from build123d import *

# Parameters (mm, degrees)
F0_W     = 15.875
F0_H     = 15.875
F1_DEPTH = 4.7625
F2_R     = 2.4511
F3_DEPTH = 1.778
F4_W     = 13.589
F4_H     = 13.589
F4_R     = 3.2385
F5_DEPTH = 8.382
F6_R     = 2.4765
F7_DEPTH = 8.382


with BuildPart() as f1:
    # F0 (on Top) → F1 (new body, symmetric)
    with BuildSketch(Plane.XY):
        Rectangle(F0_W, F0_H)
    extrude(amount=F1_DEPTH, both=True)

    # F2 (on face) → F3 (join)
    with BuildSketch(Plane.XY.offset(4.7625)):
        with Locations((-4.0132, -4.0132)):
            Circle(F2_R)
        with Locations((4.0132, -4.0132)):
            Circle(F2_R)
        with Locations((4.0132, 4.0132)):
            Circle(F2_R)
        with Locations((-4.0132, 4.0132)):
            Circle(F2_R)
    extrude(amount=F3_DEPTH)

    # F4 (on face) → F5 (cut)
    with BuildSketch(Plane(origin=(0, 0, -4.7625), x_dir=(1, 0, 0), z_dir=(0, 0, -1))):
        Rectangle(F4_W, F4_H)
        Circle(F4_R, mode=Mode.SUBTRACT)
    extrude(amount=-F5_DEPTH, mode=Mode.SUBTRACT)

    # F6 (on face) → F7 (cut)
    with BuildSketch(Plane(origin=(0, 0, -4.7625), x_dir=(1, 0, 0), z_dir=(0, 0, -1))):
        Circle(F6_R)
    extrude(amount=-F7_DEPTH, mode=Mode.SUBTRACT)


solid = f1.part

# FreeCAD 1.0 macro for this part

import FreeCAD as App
import Part
import Sketcher
Q = App.Units.Quantity

doc = App.newDocument("Part")
body = doc.addObject("PartDesign::Body", "Body")

# Sketch on XY plane
sketch1 = doc.addObject("Sketcher::SketchObject", "Sketch")
body.addObject(sketch1)
sketch1.AttachmentSupport = (doc.XY_Plane, [""])
sketch1.MapMode = "FlatFace"
sketch1.addGeometry(Part.LineSegment(App.Vector(-8, 8, 0), App.Vector(-8, -8, 0)), False)
sketch1.addGeometry(Part.LineSegment(App.Vector(-8, -8, 0), App.Vector(8, -8, 0)), False)
sketch1.addGeometry(Part.LineSegment(App.Vector(8, -8, 0), App.Vector(8, 8, 0)), False)
sketch1.addGeometry(Part.LineSegment(App.Vector(8, 8, 0), App.Vector(-8, 8, 0)), False)
sketch1.addConstraint(Sketcher.Constraint("Coincident", 0, 2, 1, 1))
sketch1.addConstraint(Sketcher.Constraint("Coincident", 1, 2, 2, 1))
sketch1.addConstraint(Sketcher.Constraint("Coincident", 2, 2, 3, 1))
sketch1.addConstraint(Sketcher.Constraint("Coincident", 3, 2, 0, 1))
sketch1.addConstraint(Sketcher.Constraint("Vertical", 0))
sketch1.addConstraint(Sketcher.Constraint("Horizontal", 1))
sketch1.addConstraint(Sketcher.Constraint("Vertical", 2))
sketch1.addConstraint(Sketcher.Constraint("Horizontal", 3))
sketch1.addConstraint(Sketcher.Constraint("Symmetric", 0, 2, 2, 2, -1, 1))
sketch1.addConstraint(Sketcher.Constraint("Equal", 3, 0))
sketch1.addConstraint(Sketcher.Constraint("DistanceX", 1, 1, 1, 2, Q("0.625 in")))
pad1 = doc.addObject("PartDesign::Pad", "Pad")
body.addObject(pad1)
pad1.Profile = sketch1
pad1.Length = Q("0.375 in")
pad1.Midplane = True

# Sketch on XY plane
sketch2 = doc.addObject("Sketcher::SketchObject", "Sketch001")
body.addObject(sketch2)
sketch2.AttachmentSupport = (doc.XY_Plane, [""])
sketch2.MapMode = "FlatFace"
sketch2.AttachmentOffset = App.Placement(App.Vector(0, 0, 0.1875 * 25.4), App.Rotation())
sketch2.addGeometry(Part.Circle(App.Vector(-4, -4, 0), App.Vector(0, 0, 1), 2.5), False)
sketch2.addGeometry(Part.Circle(App.Vector(4, -4, 0), App.Vector(0, 0, 1), 2.5), False)
sketch2.addGeometry(Part.Circle(App.Vector(4, 4, 0), App.Vector(0, 0, 1), 2.5), False)
sketch2.addGeometry(Part.Circle(App.Vector(-4, 4, 0), App.Vector(0, 0, 1), 2.5), False)
sketch2.addConstraint(Sketcher.Constraint("Equal", 0, 1))
sketch2.addConstraint(Sketcher.Constraint("Equal", 1, 2))
sketch2.addConstraint(Sketcher.Constraint("Equal", 2, 3))
sketch2.addConstraint(Sketcher.Constraint("Symmetric", 0, 3, 2, 3, -1, 1))
sketch2.addConstraint(Sketcher.Constraint("Symmetric", 1, 3, 3, 3, -1, 1))
sketch2.addConstraint(Sketcher.Constraint("Symmetric", 0, 3, 1, 3, -2))
sketch2.addConstraint(Sketcher.Constraint("Diameter", 0, Q("0.193 in")))
sketch2.addConstraint(Sketcher.Constraint("DistanceX", 0, 3, -1, 1, Q("0.158 in")))
sketch2.addConstraint(Sketcher.Constraint("DistanceY", 0, 3, -1, 1, Q("0.158 in")))
pad2 = doc.addObject("PartDesign::Pad", "Pad001")
body.addObject(pad2)
pad2.Profile = sketch2
pad2.Length = Q("0.07 in")

# Sketch on XY plane
sketch3 = doc.addObject("Sketcher::SketchObject", "Sketch002")
body.addObject(sketch3)
sketch3.AttachmentSupport = (doc.XY_Plane, [""])
sketch3.MapMode = "FlatFace"
sketch3.AttachmentOffset = App.Placement(App.Vector(0, 0, -0.1875 * 25.4), App.Rotation())
sketch3.addGeometry(Part.LineSegment(App.Vector(-6.8, -6.8, 0), App.Vector(-6.8, 6.8, 0)), False)
sketch3.addGeometry(Part.LineSegment(App.Vector(-6.8, 6.8, 0), App.Vector(6.8, 6.8, 0)), False)
sketch3.addGeometry(Part.LineSegment(App.Vector(6.8, 6.8, 0), App.Vector(6.8, -6.8, 0)), False)
sketch3.addGeometry(Part.LineSegment(App.Vector(6.8, -6.8, 0), App.Vector(-6.8, -6.8, 0)), False)
sketch3.addGeometry(Part.Circle(App.Vector(0, 0, 0), App.Vector(0, 0, 1), 3.2), False)
sketch3.addConstraint(Sketcher.Constraint("Coincident", 0, 2, 1, 1))
sketch3.addConstraint(Sketcher.Constraint("Coincident", 1, 2, 2, 1))
sketch3.addConstraint(Sketcher.Constraint("Coincident", 2, 2, 3, 1))
sketch3.addConstraint(Sketcher.Constraint("Coincident", 3, 2, 0, 1))
sketch3.addConstraint(Sketcher.Constraint("Vertical", 0))
sketch3.addConstraint(Sketcher.Constraint("Horizontal", 1))
sketch3.addConstraint(Sketcher.Constraint("Vertical", 2))
sketch3.addConstraint(Sketcher.Constraint("Horizontal", 3))
sketch3.addConstraint(Sketcher.Constraint("Coincident", 4, 3, -1, 1))
sketch3.addConstraint(Sketcher.Constraint("Symmetric", 0, 2, 2, 2, -1, 1))
sketch3.addConstraint(Sketcher.Constraint("Equal", 3, 0))
sketch3.addConstraint(Sketcher.Constraint("Diameter", 4, Q("0.255 in")))
sketch3.addConstraint(Sketcher.Constraint("DistanceX", 1, 1, 1, 2, Q("0.535 in")))
pocket1 = doc.addObject("PartDesign::Pocket", "Pocket")
body.addObject(pocket1)
pocket1.Profile = sketch3
pocket1.Length = Q("0.33 in")
pocket1.Reversed = True

# Sketch on XY plane
sketch4 = doc.addObject("Sketcher::SketchObject", "Sketch003")
body.addObject(sketch4)
sketch4.AttachmentSupport = (doc.XY_Plane, [""])
sketch4.MapMode = "FlatFace"
sketch4.AttachmentOffset = App.Placement(App.Vector(0, 0, -0.1875 * 25.4), App.Rotation())
sketch4.addGeometry(Part.Circle(App.Vector(0, 0, 0), App.Vector(0, 0, 1), 2.5), False)
sketch4.addConstraint(Sketcher.Constraint("Coincident", 0, 3, -1, 1))
sketch4.addConstraint(Sketcher.Constraint("Diameter", 0, Q("0.195 in")))
pocket2 = doc.addObject("PartDesign::Pocket", "Pocket001")
body.addObject(pocket2)
pocket2.Profile = sketch4
pocket2.Length = Q("0.33 in")
pocket2.Reversed = True

doc.recompute()
